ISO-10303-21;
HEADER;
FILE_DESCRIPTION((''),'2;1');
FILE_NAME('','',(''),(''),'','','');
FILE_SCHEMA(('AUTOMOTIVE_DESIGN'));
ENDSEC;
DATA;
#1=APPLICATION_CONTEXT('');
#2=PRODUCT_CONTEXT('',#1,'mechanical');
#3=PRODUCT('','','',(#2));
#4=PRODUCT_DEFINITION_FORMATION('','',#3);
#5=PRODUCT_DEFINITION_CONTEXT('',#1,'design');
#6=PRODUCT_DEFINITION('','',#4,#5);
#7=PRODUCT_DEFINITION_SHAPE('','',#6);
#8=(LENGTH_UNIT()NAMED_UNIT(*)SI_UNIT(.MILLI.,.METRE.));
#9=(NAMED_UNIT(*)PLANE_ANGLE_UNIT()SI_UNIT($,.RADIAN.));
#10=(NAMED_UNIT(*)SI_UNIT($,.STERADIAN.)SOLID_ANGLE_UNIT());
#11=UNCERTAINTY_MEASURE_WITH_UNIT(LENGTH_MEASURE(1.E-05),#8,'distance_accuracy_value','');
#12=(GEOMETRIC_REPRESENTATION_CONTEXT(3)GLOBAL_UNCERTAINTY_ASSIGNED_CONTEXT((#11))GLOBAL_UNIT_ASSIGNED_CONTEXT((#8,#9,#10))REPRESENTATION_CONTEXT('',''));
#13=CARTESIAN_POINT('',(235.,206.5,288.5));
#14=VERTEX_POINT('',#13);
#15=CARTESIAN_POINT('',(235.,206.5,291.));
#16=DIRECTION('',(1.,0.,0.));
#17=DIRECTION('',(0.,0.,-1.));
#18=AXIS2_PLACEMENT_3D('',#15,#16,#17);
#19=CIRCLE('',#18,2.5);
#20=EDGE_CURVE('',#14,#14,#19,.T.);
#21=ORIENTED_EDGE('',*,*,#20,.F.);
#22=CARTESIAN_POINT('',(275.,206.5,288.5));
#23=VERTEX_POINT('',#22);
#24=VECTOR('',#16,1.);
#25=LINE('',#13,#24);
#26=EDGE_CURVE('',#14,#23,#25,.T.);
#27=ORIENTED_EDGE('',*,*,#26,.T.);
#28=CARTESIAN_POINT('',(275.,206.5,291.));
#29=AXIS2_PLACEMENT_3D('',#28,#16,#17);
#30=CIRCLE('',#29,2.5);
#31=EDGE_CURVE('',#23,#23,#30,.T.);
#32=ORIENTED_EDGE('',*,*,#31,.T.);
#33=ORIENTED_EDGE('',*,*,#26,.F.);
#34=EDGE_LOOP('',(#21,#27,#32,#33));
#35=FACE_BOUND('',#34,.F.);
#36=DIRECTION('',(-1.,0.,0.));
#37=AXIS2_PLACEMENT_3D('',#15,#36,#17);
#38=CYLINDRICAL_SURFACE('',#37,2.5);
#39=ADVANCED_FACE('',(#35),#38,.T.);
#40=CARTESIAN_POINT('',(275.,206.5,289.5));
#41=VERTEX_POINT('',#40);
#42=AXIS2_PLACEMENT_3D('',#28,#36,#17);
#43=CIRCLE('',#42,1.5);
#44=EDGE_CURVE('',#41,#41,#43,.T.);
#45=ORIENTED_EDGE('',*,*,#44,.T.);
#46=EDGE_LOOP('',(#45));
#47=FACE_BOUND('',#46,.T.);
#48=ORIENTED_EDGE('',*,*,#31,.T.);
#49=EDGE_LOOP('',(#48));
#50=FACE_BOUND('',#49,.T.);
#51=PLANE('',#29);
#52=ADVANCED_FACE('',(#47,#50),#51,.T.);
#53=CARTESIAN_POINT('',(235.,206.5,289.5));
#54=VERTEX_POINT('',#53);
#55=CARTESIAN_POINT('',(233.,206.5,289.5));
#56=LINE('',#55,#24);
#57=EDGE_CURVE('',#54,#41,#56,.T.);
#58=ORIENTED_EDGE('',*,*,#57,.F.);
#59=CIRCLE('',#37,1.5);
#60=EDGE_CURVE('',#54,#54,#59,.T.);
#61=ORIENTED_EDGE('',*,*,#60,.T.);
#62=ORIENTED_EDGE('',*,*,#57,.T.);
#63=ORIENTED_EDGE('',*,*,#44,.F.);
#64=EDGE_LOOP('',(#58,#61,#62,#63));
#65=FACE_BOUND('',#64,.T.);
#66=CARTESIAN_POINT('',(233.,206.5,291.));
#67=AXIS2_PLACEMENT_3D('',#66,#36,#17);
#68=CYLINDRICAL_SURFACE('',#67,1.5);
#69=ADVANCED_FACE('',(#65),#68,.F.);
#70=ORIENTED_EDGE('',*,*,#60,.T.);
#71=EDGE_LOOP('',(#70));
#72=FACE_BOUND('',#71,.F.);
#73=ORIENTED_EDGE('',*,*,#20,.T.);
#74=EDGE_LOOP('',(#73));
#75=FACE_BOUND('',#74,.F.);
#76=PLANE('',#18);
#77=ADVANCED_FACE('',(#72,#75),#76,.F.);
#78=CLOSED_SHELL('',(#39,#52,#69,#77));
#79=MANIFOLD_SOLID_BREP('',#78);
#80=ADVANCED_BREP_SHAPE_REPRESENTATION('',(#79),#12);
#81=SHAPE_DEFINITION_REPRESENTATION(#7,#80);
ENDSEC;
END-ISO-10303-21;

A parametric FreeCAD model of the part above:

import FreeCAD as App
import Part
import Sketcher
from FreeCAD import Vector

doc = App.newDocument("Part")
params = doc.addObject("Spreadsheet::Sheet", "Params")
for row, (alias, value) in enumerate([
    ("sketch1_diameter", "3 mm"),
    ("pad1_length", "44 mm"),
    ("sketch2_diameter", "5 mm"),
    ("pad2_length", "40 mm"),
], start=1):
    params.set(f"A{row}", alias)
    params.set(f"B{row}", "=" + value)
    params.setAlias(f"B{row}", alias)

body = doc.addObject("PartDesign::Body", "Body")

# Sketch on XY plane
sketch1 = body.newObject("Sketcher::SketchObject", "Sketch")
sketch1.AttachmentSupport = (doc.getObject("XY_Plane"), [""])
sketch1.MapMode = "FlatFace"
sketch1.addGeometry(Part.Circle(Vector(0, 0, 0), Vector(0, 0, 1), 1.5), False)
sketch1.addConstraint([
    Sketcher.Constraint("Coincident", 0, 3, -1, 1),
    Sketcher.Constraint("Diameter", 0, 3.0),
])
sketch1.setExpression("Constraints[1]", "Params.sketch1_diameter")
pad1 = body.newObject("PartDesign::Pad", "Pad")
pad1.Profile = sketch1
pad1.setExpression("Length", "Params.pad1_length")
body2 = doc.addObject("PartDesign::Body", "Body001")
doc.recompute()

body.Placement = App.Placement(Vector(0, 0, 0), App.Rotation(Vector(0, 1, 0), 90))
boolean = body2.newObject("PartDesign::Boolean", "Boolean")
boolean.Type = "Fuse"
boolean.addObjects([body])
body3 = doc.addObject("PartDesign::Body", "Body002")
doc.recompute()

body2.Placement = App.Placement(Vector(-2, 0, 0), App.Rotation(Vector(0, 0, 1), 0))
boolean2 = body3.newObject("PartDesign::Boolean", "Boolean001")
boolean2.Type = "Fuse"
boolean2.addObjects([body2])
body4 = doc.addObject("PartDesign::Body", "Body003")

# Sketch on XY plane
sketch2 = body4.newObject("Sketcher::SketchObject", "Sketch001")
sketch2.AttachmentSupport = (doc.getObject("XY_Plane003"), [""])
sketch2.MapMode = "FlatFace"
sketch2.addGeometry(Part.Circle(Vector(0, 0, 0), Vector(0, 0, 1), 2.5), False)
sketch2.addConstraint([
    Sketcher.Constraint("Coincident", 0, 3, -1, 1),
    Sketcher.Constraint("Diameter", 0, 5.0),
])
sketch2.setExpression("Constraints[1]", "Params.sketch2_diameter")
pad2 = body4.newObject("PartDesign::Pad", "Pad001")
pad2.Profile = sketch2
pad2.setExpression("Length", "Params.pad2_length")
body5 = doc.addObject("PartDesign::Body", "Body004")
doc.recompute()

body4.Placement = App.Placement(Vector(0, 0, 0), App.Rotation(Vector(0, 1, 0), 90))
boolean3 = body5.newObject("PartDesign::Boolean", "Boolean002")
boolean3.Type = "Fuse"
boolean3.addObjects([body4])
doc.recompute()

boolean4 = body5.newObject("PartDesign::Boolean", "Boolean003")
boolean4.Type = "Cut"
boolean4.addObjects([body3])
body6 = doc.addObject("PartDesign::Body", "Body005")
doc.recompute()

body5.Placement = App.Placement(Vector(235, 206.5, 291), App.Rotation(Vector(0, 0, 1), 0))
boolean5 = body6.newObject("PartDesign::Boolean", "Boolean004")
boolean5.Type = "Fuse"
boolean5.addObjects([body5])

doc.recompute()
